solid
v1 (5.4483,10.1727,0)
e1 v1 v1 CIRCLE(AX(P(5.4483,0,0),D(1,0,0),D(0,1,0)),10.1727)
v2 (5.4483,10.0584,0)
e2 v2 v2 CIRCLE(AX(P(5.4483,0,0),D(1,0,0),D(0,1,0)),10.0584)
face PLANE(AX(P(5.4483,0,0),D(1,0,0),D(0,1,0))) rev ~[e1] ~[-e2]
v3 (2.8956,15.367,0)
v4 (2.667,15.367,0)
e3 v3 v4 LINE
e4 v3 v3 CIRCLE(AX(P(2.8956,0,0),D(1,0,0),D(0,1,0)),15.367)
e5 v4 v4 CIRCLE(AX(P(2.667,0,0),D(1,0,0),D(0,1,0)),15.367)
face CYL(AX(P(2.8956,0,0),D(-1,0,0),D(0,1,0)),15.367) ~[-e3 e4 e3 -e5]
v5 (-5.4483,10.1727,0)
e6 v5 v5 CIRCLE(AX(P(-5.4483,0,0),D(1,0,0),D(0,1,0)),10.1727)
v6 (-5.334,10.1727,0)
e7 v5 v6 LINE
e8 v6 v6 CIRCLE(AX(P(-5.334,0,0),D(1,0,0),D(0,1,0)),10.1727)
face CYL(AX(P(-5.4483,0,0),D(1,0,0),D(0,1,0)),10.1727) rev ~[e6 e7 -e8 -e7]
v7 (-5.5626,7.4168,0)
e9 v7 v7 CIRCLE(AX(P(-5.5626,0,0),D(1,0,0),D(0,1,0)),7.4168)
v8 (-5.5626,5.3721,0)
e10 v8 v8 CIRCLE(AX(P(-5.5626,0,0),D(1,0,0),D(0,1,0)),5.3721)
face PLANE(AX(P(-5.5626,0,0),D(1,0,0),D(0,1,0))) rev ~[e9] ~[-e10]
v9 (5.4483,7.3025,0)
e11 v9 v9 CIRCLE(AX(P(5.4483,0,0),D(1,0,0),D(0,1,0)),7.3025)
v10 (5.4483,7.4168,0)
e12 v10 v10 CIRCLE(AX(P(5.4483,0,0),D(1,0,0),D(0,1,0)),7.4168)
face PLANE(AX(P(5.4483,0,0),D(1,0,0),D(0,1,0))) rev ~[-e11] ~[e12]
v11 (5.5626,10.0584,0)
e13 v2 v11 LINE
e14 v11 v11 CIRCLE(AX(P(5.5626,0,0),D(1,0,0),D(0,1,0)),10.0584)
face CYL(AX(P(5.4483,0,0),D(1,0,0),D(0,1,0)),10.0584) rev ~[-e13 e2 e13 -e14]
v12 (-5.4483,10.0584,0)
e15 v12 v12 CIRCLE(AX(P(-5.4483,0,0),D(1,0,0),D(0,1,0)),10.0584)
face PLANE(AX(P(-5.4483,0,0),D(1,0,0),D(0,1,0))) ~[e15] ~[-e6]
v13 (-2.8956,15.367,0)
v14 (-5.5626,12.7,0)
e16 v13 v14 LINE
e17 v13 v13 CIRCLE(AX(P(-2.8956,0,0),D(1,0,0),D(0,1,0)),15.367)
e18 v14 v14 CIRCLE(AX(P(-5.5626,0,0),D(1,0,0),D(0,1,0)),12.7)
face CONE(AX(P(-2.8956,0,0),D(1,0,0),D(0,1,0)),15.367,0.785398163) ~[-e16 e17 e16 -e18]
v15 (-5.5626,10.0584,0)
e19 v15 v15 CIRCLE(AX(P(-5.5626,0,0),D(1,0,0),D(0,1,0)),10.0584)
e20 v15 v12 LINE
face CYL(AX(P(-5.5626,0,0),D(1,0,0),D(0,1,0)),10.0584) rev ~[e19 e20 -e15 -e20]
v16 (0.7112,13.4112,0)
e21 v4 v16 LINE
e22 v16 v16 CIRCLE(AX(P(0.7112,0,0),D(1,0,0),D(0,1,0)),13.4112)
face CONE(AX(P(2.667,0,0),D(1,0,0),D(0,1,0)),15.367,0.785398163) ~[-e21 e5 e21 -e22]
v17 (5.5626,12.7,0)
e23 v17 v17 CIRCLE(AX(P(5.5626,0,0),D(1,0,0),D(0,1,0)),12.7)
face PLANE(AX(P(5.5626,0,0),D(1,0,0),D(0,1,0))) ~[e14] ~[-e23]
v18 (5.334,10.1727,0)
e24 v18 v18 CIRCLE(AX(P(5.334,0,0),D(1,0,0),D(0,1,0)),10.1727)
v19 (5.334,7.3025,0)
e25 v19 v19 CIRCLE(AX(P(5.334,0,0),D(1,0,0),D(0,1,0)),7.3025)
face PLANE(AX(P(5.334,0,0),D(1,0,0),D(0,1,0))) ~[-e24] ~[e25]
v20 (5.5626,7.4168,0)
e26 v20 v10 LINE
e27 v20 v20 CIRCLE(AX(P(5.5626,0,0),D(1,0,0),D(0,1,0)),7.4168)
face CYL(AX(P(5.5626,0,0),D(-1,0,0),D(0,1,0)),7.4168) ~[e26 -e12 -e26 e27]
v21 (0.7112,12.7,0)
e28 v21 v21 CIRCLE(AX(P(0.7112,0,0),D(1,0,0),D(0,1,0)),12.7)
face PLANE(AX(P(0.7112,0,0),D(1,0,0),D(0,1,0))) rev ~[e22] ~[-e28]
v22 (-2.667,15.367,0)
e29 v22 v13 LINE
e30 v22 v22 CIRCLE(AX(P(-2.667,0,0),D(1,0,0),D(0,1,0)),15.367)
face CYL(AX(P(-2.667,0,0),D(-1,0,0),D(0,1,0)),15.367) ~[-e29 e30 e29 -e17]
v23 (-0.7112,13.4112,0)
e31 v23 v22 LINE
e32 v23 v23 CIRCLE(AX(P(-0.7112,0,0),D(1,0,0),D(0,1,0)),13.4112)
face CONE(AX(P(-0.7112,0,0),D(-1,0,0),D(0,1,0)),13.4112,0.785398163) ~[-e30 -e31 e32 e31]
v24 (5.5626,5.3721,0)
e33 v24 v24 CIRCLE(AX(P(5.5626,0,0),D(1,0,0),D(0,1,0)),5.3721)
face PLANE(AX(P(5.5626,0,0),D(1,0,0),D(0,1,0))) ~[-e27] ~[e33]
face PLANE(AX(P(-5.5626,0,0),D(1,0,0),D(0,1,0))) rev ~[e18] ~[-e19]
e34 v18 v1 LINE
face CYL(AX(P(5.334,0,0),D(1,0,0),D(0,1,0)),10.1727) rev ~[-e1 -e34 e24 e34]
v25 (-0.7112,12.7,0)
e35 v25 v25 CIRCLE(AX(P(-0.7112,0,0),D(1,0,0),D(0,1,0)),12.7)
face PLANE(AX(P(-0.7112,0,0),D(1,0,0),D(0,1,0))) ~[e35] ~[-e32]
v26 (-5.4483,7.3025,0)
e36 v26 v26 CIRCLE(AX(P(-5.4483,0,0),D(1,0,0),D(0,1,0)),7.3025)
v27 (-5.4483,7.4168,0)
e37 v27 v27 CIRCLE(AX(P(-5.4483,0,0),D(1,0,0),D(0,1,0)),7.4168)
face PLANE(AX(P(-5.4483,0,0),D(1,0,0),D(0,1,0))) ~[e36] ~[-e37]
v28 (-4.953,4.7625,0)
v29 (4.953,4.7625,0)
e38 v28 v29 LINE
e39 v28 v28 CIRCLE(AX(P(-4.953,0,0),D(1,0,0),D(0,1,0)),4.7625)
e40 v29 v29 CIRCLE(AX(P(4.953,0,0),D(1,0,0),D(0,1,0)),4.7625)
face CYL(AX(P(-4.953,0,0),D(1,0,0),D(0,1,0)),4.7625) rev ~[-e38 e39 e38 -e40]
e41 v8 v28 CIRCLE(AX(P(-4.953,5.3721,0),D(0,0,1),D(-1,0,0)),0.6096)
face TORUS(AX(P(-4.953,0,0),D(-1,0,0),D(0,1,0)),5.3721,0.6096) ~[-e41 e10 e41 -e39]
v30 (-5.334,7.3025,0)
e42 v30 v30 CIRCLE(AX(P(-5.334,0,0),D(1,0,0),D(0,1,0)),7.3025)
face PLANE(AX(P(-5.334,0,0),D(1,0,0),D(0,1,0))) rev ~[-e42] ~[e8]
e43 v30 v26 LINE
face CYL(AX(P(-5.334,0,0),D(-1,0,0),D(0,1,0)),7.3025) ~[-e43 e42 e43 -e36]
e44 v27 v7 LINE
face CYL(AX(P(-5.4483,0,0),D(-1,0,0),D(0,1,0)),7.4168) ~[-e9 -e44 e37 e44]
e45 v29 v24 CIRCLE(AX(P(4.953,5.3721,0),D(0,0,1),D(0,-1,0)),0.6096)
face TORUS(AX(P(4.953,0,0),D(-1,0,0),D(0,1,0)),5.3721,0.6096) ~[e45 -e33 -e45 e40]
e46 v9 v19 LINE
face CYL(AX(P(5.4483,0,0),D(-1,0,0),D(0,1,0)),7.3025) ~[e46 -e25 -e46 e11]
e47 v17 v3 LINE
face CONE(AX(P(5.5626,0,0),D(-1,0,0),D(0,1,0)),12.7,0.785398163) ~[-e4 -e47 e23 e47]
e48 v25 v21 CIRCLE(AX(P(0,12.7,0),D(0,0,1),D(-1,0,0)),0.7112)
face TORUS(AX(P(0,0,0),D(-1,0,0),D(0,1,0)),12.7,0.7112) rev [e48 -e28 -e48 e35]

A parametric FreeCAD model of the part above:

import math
import FreeCAD as App
import Part
import Sketcher
Q = App.Units.Quantity

doc = App.newDocument("Part")
body = doc.addObject("PartDesign::Body", "Body")

# Sketch on XY plane
sketch1 = body.newObject("Sketcher::SketchObject", "Sketch")
sketch1.AttachmentSupport = (doc.getObject("XY_Plane"), [""])
sketch1.MapMode = "FlatFace"
sketch1.addGeometry([
    Part.LineSegment(App.Vector(-5.4483, 7.4168, 0), App.Vector(-5.5626, 7.4168, 0)),  # 0
    Part.LineSegment(App.Vector(-5.5626, 7.4168, 0), App.Vector(-5.5626, 5.3721, 0)),  # 1
    Part.ArcOfCircle(Part.Circle(App.Vector(-4.953, 5.3721, 0), App.Vector(0, 0, 1), 0.6096), math.radians(180), math.radians(270)),  # 2
    Part.LineSegment(App.Vector(-4.953, 4.7625, 0), App.Vector(4.953, 4.7625, 0)),  # 3
    Part.ArcOfCircle(Part.Circle(App.Vector(4.953, 5.3721, 0), App.Vector(0, 0, 1), 0.6096), math.radians(-90), math.radians(0)),  # 4
    Part.LineSegment(App.Vector(5.5626, 5.3721, 0), App.Vector(5.5626, 7.4168, 0)),  # 5
    Part.LineSegment(App.Vector(5.5626, 7.4168, 0), App.Vector(5.4483, 7.4168, 0)),  # 6
    Part.LineSegment(App.Vector(5.4483, 7.4168, 0), App.Vector(5.4483, 7.3025, 0)),  # 7
    Part.LineSegment(App.Vector(5.4483, 7.3025, 0), App.Vector(5.334, 7.3025, 0)),  # 8
    Part.LineSegment(App.Vector(5.334, 7.3025, 0), App.Vector(5.334, 10.1727, 0)),  # 9
    Part.LineSegment(App.Vector(5.334, 10.1727, 0), App.Vector(5.4483, 10.1727, 0)),  # 10
    Part.LineSegment(App.Vector(5.4483, 10.1727, 0), App.Vector(5.4483, 10.0584, 0)),  # 11
    Part.LineSegment(App.Vector(5.4483, 10.0584, 0), App.Vector(5.5626, 10.0584, 0)),  # 12
    Part.LineSegment(App.Vector(5.5626, 10.0584, 0), App.Vector(5.5626, 12.7, 0)),  # 13
    Part.LineSegment(App.Vector(5.5626, 12.7, 0), App.Vector(2.8956, 15.367, 0)),  # 14
    Part.LineSegment(App.Vector(2.8956, 15.367, 0), App.Vector(2.667, 15.367, 0)),  # 15
    Part.LineSegment(App.Vector(2.667, 15.367, 0), App.Vector(0.7112, 13.4112, 0)),  # 16
    Part.LineSegment(App.Vector(0.7112, 13.4112, 0), App.Vector(0.7112, 12.7, 0)),  # 17
    Part.ArcOfCircle(Part.Circle(App.Vector(0, 12.7, 0), App.Vector(0, 0, 1), 0.7112), math.radians(180), math.radians(360)),  # 18
    Part.LineSegment(App.Vector(-0.7112, 12.7, 0), App.Vector(-0.7112, 13.4112, 0)),  # 19
    Part.LineSegment(App.Vector(-0.7112, 13.4112, 0), App.Vector(-2.667, 15.367, 0)),  # 20
    Part.LineSegment(App.Vector(-2.667, 15.367, 0), App.Vector(-2.8956, 15.367, 0)),  # 21
    Part.LineSegment(App.Vector(-2.8956, 15.367, 0), App.Vector(-5.5626, 12.7, 0)),  # 22
    Part.LineSegment(App.Vector(-5.5626, 12.7, 0), App.Vector(-5.5626, 10.0584, 0)),  # 23
    Part.LineSegment(App.Vector(-5.5626, 10.0584, 0), App.Vector(-5.4483, 10.0584, 0)),  # 24
    Part.LineSegment(App.Vector(-5.4483, 10.0584, 0), App.Vector(-5.4483, 10.1727, 0)),  # 25
    Part.LineSegment(App.Vector(-5.4483, 10.1727, 0), App.Vector(-5.334, 10.1727, 0)),  # 26
    Part.LineSegment(App.Vector(-5.334, 10.1727, 0), App.Vector(-5.334, 7.3025, 0)),  # 27
    Part.LineSegment(App.Vector(-5.334, 7.3025, 0), App.Vector(-5.4483, 7.3025, 0)),  # 28
    Part.LineSegment(App.Vector(-5.4483, 7.3025, 0), App.Vector(-5.4483, 7.4168, 0)),  # 29
], False)
sketch1.addConstraint([
    Sketcher.Constraint("Coincident", 0, 2, 1, 1),
    Sketcher.Constraint("Tangent", 1, 2, 2, 1),
    Sketcher.Constraint("Tangent", 2, 2, 3, 1),
    Sketcher.Constraint("Tangent", 3, 2, 4, 1),
    Sketcher.Constraint("Tangent", 4, 2, 5, 1),
    Sketcher.Constraint("Coincident", 5, 2, 6, 1),
    Sketcher.Constraint("Coincident", 6, 2, 7, 1),
    Sketcher.Constraint("Coincident", 7, 2, 8, 1),
    Sketcher.Constraint("Coincident", 8, 2, 9, 1),
    Sketcher.Constraint("Coincident", 9, 2, 10, 1),
    Sketcher.Constraint("Coincident", 10, 2, 11, 1),
    Sketcher.Constraint("Coincident", 11, 2, 12, 1),
    Sketcher.Constraint("Coincident", 12, 2, 13, 1),
    Sketcher.Constraint("Coincident", 13, 2, 14, 1),
    Sketcher.Constraint("Coincident", 14, 2, 15, 1),
    Sketcher.Constraint("Coincident", 15, 2, 16, 1),
    Sketcher.Constraint("Coincident", 16, 2, 17, 1),
    Sketcher.Constraint("Tangent", 17, 2, 18, 2),
    Sketcher.Constraint("Tangent", 18, 1, 19, 1),
    Sketcher.Constraint("Coincident", 19, 2, 20, 1),
    Sketcher.Constraint("Coincident", 20, 2, 21, 1),
    Sketcher.Constraint("Coincident", 21, 2, 22, 1),
    Sketcher.Constraint("Coincident", 22, 2, 23, 1),
    Sketcher.Constraint("Coincident", 23, 2, 24, 1),
    Sketcher.Constraint("Coincident", 24, 2, 25, 1),
    Sketcher.Constraint("Coincident", 25, 2, 26, 1),
    Sketcher.Constraint("Coincident", 26, 2, 27, 1),
    Sketcher.Constraint("Coincident", 27, 2, 28, 1),
    Sketcher.Constraint("Coincident", 28, 2, 29, 1),
    Sketcher.Constraint("Coincident", 29, 2, 0, 1),
    Sketcher.Constraint("Horizontal", 0),
    Sketcher.Constraint("Vertical", 1),
    Sketcher.Constraint("Horizontal", 3),
    Sketcher.Constraint("Vertical", 5),
    Sketcher.Constraint("Horizontal", 6),
    Sketcher.Constraint("Vertical", 7),
    Sketcher.Constraint("Horizontal", 8),
    Sketcher.Constraint("Vertical", 9),
    Sketcher.Constraint("Horizontal", 10),
    Sketcher.Constraint("Vertical", 11),
    Sketcher.Constraint("Horizontal", 12),
    Sketcher.Constraint("Vertical", 13),
    Sketcher.Constraint("Horizontal", 15),
    Sketcher.Constraint("Vertical", 17),
    Sketcher.Constraint("Vertical", 19),
    Sketcher.Constraint("Horizontal", 21),
    Sketcher.Constraint("Vertical", 23),
    Sketcher.Constraint("Horizontal", 24),
    Sketcher.Constraint("Vertical", 25),
    Sketcher.Constraint("Horizontal", 26),
    Sketcher.Constraint("Vertical", 27),
    Sketcher.Constraint("Horizontal", 28),
    Sketcher.Constraint("Vertical", 29),
    Sketcher.Constraint("Equal", 2, 4),
    Sketcher.Constraint("Symmetric", 0, 2, 5, 2, -2),
    Sketcher.Constraint("Symmetric", 16, 2, 19, 2, -2),
    Sketcher.Constraint("Symmetric", 15, 2, 20, 2, -2),
    Sketcher.Constraint("Symmetric", 13, 2, 22, 2, -2),
    Sketcher.Constraint("Symmetric", 11, 2, 24, 2, -2),
    Sketcher.Constraint("Symmetric", 9, 2, 26, 2, -2),
    Sketcher.Constraint("Symmetric", 7, 2, 28, 2, -2),
    Sketcher.Constraint("Perpendicular", 14, 16),
    Sketcher.Constraint("Perpendicular", 16, 20),
    Sketcher.Constraint("Perpendicular", 20, 22),
    Sketcher.Constraint("Horizontal", 18, 3, 13, 2),
    Sketcher.Constraint("Vertical", 7, 2, 10, 2),
    Sketcher.Constraint("Vertical", 5, 2, 12, 2),
    Sketcher.Constraint("Equal", 6, 8),
    Sketcher.Constraint("Equal", 28, 7),
    Sketcher.Constraint("Equal", 7, 11),
    Sketcher.Constraint("Radius", 2, Q("0.024 in")),
    Sketcher.Constraint("Radius", 18, Q("0.028 in")),
    Sketcher.Constraint("DistanceX", 3, 1, 3, 2, Q("0.39 in")),
    Sketcher.Constraint("DistanceY", -1, 1, 18, 3, Q("0.5 in")),
    Sketcher.Constraint("DistanceY", 3, 2, 7, 2, Q("0.1 in")),
    Sketcher.Constraint("DistanceX", 15, 2, 15, 1, Q("0.009 in")),
    Sketcher.Constraint("DistanceY", 9, 1, 9, 2, Q("0.113 in")),
    Sketcher.Constraint("DistanceY", 13, 1, 13, 2, Q("0.104 in")),
    Sketcher.Constraint("DistanceY", 17, 2, 17, 1, Q("0.028 in")),
    Sketcher.Constraint("DistanceX", -1, 1, 8, 2, Q("0.21 in")),
])
revolution = body.newObject("PartDesign::Revolution", "Revolution")
revolution.Profile = sketch1
revolution.ReferenceAxis = (sketch1, ["H_Axis"])
revolution.Angle = 360

doc.recompute()
